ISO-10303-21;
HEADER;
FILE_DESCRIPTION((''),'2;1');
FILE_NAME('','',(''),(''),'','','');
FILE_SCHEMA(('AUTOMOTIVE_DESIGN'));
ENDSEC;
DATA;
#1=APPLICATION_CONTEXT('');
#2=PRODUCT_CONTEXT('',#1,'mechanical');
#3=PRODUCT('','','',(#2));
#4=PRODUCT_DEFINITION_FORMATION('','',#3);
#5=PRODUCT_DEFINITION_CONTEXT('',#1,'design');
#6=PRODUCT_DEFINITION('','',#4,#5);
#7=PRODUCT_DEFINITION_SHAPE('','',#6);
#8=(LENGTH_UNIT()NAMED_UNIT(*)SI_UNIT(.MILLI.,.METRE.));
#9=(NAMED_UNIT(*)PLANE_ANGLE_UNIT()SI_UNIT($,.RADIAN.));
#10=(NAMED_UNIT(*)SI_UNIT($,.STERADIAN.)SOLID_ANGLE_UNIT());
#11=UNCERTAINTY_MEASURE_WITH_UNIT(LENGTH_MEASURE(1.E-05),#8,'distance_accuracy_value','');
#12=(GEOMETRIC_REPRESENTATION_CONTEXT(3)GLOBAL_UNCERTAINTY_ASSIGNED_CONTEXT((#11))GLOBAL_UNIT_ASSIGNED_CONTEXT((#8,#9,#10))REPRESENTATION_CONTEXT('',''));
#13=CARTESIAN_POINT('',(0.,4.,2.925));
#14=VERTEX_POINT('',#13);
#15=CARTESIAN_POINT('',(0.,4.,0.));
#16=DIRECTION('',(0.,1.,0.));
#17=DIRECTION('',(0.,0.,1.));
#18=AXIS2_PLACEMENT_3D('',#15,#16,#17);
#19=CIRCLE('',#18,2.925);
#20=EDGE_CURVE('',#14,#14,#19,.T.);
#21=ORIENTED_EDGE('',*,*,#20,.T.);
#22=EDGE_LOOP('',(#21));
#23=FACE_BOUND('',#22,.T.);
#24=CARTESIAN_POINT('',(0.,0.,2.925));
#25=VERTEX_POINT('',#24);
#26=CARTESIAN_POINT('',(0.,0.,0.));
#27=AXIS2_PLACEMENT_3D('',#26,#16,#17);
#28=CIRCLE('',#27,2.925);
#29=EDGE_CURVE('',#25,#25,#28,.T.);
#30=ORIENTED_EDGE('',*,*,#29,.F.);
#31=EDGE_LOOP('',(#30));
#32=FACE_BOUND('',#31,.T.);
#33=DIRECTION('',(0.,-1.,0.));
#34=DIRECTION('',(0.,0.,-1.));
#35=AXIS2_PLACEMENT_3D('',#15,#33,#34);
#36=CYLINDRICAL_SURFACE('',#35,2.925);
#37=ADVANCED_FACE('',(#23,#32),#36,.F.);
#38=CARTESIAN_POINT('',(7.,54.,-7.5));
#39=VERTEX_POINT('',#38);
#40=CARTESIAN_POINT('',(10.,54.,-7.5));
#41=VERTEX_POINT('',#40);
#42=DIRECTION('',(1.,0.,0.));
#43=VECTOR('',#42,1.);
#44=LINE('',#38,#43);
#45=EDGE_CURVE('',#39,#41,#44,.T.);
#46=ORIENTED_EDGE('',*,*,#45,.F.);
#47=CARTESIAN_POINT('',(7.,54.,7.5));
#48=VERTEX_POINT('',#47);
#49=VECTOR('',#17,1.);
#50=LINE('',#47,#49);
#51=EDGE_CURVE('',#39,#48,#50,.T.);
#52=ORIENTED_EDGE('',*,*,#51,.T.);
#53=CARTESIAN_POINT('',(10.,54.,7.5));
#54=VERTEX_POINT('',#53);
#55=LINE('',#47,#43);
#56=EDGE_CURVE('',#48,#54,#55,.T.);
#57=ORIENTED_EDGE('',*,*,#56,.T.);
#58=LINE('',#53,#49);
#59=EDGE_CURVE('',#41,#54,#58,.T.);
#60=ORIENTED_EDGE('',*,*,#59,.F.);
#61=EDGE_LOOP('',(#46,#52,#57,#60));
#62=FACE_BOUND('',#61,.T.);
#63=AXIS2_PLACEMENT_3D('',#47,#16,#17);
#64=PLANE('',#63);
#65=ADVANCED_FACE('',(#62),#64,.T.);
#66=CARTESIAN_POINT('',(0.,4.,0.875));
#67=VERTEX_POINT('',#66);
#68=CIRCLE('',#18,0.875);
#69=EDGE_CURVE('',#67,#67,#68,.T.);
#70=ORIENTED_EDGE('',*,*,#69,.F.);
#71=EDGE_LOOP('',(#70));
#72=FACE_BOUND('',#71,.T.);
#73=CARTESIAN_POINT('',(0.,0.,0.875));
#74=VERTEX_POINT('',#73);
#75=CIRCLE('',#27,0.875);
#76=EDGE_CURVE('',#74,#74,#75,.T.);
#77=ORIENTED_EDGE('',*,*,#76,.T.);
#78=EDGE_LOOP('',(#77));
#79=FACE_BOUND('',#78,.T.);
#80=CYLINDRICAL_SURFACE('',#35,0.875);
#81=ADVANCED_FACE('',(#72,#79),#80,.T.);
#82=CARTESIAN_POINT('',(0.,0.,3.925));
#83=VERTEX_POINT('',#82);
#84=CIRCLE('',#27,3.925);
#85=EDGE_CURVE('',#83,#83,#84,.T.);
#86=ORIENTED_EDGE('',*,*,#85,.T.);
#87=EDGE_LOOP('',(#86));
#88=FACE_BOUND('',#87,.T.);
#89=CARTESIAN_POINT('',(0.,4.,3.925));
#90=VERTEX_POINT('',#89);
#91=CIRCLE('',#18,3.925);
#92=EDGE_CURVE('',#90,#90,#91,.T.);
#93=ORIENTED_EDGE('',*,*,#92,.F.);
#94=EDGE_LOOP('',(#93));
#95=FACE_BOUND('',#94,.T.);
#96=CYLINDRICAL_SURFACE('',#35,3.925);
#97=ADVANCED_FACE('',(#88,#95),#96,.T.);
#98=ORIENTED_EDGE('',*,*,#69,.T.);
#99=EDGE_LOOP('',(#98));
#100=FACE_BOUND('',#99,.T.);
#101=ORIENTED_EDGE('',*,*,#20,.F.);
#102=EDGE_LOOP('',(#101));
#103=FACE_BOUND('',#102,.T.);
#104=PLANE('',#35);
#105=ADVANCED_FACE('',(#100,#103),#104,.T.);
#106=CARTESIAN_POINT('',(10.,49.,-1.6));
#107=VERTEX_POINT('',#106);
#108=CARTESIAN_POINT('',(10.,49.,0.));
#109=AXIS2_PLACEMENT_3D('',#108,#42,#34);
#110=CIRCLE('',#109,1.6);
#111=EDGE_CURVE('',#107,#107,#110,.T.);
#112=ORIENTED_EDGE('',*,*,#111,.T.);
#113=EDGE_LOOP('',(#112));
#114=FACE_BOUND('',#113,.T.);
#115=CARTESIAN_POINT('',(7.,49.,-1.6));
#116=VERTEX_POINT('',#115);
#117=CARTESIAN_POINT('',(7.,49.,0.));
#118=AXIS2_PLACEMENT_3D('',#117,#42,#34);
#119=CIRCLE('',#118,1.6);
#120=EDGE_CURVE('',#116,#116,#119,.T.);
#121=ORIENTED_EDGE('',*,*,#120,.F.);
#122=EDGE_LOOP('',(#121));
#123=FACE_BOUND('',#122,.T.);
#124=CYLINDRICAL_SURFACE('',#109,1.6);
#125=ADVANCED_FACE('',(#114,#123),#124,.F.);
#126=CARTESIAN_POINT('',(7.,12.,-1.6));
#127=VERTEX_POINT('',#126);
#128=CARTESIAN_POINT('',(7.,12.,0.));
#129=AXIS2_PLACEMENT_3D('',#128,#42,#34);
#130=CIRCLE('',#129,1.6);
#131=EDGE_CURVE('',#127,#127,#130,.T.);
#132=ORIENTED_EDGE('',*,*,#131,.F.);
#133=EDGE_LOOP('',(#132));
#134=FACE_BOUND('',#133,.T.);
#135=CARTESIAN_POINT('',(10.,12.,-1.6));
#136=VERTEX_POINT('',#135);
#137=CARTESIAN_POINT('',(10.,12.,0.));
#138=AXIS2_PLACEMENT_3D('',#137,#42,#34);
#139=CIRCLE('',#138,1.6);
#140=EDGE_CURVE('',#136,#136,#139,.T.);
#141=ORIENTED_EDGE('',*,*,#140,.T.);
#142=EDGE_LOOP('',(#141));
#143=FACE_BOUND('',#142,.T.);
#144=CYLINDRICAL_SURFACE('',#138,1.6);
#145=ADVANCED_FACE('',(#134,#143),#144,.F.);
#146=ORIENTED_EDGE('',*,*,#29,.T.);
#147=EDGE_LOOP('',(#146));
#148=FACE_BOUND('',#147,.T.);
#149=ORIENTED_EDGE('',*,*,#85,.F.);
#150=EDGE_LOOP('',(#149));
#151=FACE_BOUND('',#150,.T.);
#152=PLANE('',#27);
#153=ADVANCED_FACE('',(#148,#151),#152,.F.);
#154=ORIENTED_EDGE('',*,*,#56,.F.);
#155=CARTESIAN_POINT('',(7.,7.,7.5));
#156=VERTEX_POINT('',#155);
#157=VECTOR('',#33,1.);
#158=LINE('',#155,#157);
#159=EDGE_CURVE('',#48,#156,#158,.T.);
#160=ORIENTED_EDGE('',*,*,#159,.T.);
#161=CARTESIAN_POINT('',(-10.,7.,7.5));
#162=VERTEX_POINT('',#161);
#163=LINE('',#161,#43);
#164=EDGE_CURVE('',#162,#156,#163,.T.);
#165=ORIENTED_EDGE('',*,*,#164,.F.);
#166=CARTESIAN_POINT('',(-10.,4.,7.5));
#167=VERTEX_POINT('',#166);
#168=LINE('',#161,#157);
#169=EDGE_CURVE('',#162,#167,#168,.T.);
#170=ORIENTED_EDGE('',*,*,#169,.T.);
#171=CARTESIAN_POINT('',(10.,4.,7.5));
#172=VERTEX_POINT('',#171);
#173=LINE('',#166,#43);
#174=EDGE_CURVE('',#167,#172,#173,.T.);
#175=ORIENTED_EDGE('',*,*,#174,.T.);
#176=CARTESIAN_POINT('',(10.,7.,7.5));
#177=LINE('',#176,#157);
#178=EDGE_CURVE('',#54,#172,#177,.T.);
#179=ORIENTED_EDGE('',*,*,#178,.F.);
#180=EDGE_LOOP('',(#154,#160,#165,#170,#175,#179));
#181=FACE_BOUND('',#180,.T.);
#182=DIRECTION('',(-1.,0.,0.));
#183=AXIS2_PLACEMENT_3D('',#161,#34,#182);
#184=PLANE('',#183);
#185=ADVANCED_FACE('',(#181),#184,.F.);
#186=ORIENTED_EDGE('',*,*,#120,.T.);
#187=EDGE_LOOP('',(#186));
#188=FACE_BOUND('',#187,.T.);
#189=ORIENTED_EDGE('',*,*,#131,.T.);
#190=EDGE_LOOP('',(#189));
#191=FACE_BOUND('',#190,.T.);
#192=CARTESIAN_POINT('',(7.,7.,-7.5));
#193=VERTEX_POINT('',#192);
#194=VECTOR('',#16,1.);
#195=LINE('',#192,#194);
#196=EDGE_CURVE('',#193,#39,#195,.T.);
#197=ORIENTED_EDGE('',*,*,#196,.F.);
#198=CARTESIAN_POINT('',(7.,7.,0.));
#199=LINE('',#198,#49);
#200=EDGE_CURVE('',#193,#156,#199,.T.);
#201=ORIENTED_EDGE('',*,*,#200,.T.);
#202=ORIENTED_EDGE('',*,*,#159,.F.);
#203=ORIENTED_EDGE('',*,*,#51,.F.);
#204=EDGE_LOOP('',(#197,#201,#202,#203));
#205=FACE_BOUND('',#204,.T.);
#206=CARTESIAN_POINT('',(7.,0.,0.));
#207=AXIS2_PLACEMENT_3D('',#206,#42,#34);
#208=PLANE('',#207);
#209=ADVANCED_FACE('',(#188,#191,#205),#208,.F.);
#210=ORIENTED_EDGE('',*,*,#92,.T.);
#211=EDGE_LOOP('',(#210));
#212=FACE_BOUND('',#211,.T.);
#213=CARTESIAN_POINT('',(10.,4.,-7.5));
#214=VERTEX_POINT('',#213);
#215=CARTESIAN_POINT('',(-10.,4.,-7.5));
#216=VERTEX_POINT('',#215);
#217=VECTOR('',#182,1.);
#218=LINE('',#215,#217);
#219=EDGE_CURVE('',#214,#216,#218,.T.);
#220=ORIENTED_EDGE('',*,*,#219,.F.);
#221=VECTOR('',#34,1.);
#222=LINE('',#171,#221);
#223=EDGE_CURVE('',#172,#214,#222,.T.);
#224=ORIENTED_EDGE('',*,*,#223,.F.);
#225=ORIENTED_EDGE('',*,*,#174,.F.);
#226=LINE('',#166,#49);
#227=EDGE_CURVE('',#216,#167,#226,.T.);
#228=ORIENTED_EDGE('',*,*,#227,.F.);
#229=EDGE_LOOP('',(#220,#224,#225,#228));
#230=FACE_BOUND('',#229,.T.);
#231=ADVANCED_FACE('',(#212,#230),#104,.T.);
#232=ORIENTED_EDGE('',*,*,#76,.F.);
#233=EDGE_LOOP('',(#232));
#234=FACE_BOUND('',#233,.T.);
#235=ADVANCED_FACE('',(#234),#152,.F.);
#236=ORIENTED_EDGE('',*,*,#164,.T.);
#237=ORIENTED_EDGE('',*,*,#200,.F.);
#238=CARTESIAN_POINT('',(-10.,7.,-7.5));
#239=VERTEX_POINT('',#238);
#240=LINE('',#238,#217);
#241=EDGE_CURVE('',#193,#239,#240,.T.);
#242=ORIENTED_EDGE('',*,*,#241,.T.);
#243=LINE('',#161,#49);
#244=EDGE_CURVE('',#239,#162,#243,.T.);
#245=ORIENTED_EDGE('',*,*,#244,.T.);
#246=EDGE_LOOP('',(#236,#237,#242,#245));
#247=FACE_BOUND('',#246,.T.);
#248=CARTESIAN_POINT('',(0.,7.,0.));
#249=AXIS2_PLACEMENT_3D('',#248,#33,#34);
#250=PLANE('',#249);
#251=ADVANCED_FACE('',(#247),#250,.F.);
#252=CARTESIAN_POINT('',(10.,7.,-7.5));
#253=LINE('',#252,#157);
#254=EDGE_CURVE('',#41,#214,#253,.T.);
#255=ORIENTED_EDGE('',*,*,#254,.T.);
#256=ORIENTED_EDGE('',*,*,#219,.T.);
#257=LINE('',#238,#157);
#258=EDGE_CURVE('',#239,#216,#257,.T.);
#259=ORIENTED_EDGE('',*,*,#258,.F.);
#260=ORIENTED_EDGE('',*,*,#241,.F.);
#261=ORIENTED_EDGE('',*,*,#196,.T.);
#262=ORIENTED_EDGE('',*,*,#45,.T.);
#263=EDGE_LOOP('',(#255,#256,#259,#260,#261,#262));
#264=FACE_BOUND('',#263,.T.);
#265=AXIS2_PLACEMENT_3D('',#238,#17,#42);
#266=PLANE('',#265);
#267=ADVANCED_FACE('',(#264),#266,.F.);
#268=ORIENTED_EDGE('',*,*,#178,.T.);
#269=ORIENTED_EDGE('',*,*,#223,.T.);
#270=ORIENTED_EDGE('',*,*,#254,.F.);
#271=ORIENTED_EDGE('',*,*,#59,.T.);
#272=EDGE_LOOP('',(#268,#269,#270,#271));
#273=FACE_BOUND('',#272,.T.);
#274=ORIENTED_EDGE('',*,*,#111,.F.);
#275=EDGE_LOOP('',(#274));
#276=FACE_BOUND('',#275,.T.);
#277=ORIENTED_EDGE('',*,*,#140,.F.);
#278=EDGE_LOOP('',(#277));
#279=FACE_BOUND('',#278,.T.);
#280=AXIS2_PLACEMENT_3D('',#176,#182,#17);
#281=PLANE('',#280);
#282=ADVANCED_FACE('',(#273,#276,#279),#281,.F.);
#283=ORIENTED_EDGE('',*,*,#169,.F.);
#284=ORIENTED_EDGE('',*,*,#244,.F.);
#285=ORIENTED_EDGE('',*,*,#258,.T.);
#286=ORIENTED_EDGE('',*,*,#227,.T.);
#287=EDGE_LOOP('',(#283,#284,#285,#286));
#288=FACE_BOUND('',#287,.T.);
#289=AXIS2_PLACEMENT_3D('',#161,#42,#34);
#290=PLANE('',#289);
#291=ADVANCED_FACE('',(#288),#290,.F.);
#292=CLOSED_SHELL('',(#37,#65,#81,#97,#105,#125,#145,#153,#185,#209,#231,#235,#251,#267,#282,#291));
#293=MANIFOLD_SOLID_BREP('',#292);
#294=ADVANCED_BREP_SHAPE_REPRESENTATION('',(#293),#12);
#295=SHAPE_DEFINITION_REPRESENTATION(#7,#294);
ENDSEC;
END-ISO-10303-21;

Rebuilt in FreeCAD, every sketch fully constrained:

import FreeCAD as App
import Part
import Sketcher
Q = App.Units.Quantity

doc = App.newDocument("Part")
body = doc.addObject("PartDesign::Body", "Body")

sketch1 = body.newObject("Sketcher::SketchObject", "Sketch")
sketch1.AttachmentSupport = (doc.getObject("XZ_Plane"), [""])
sketch1.MapMode = "FlatFace"
sketch1.addGeometry(Part.Circle(App.Vector(0, 0, 0), App.Vector(0, 0, 1), 3.9), False)
sketch1.addGeometry(Part.Circle(App.Vector(0, 0, 0), App.Vector(0, 0, 1), 2.9), False)
sketch1.addConstraint(Sketcher.Constraint("Coincident", 0, 3, -1, 1))
sketch1.addConstraint(Sketcher.Constraint("Coincident", 1, 3, -1, 1))
sketch1.addConstraint(Sketcher.Constraint("Diameter", 0, Q("7.85 mm")))
sketch1.addConstraint(Sketcher.Constraint("Diameter", 1, Q("5.85 mm")))
pad1 = body.newObject("PartDesign::Pad", "Pad")
pad1.Profile = sketch1
pad1.Length = 4
pad1.Reversed = True
body2 = doc.addObject("PartDesign::Body", "Body001")

sketch2 = body2.newObject("Sketcher::SketchObject", "Sketch001")
sketch2.AttachmentSupport = (doc.getObject("XZ_Plane001"), [""])
sketch2.MapMode = "FlatFace"
sketch2.addGeometry(Part.Circle(App.Vector(0, 0, 0), App.Vector(0, 0, 1), 0.9), False)
sketch2.addConstraint(Sketcher.Constraint("Coincident", 0, 3, -1, 1))
sketch2.addConstraint(Sketcher.Constraint("Diameter", 0, Q("1.75 mm")))
pad2 = body2.newObject("PartDesign::Pad", "Pad001")
pad2.Profile = sketch2
pad2.Length = 4
pad2.Reversed = True
body.AllowCompound = True
doc.recompute()

boolean = body.newObject("PartDesign::Boolean", "Boolean")
boolean.Type = "Fuse"
boolean.addObjects([body2])

sketch3 = body.newObject("Sketcher::SketchObject", "Sketch002")
sketch3.AttachmentSupport = (doc.getObject("XZ_Plane"), [""])
sketch3.MapMode = "FlatFace"
sketch3.AttachmentOffset = App.Placement(App.Vector(0, 0, -4), App.Rotation())
sketch3.addGeometry(Part.LineSegment(App.Vector(-10, -8, 0), App.Vector(-10, 8, 0)), False)
sketch3.addGeometry(Part.LineSegment(App.Vector(-10, 8, 0), App.Vector(10, 8, 0)), False)
sketch3.addGeometry(Part.LineSegment(App.Vector(10, 8, 0), App.Vector(10, -8, 0)), False)
sketch3.addGeometry(Part.LineSegment(App.Vector(10, -8, 0), App.Vector(-10, -8, 0)), False)
sketch3.addConstraint(Sketcher.Constraint("Coincident", 0, 2, 1, 1))
sketch3.addConstraint(Sketcher.Constraint("Coincident", 1, 2, 2, 1))
sketch3.addConstraint(Sketcher.Constraint("Coincident", 2, 2, 3, 1))
sketch3.addConstraint(Sketcher.Constraint("Coincident", 3, 2, 0, 1))
sketch3.addConstraint(Sketcher.Constraint("Vertical", 0))
sketch3.addConstraint(Sketcher.Constraint("Horizontal", 1))
sketch3.addConstraint(Sketcher.Constraint("Vertical", 2))
sketch3.addConstraint(Sketcher.Constraint("Horizontal", 3))
sketch3.addConstraint(Sketcher.Constraint("Symmetric", 0, 2, 2, 2, -1, 1))
sketch3.addConstraint(Sketcher.Constraint("DistanceX", 1, 1, 1, 2, Q("20 mm")))
sketch3.addConstraint(Sketcher.Constraint("DistanceY", 0, 1, 0, 2, Q("15 mm")))
pad3 = body.newObject("PartDesign::Pad", "Pad002")
pad3.Profile = sketch3
pad3.Length = 3
pad3.Reversed = True

sketch4 = body.newObject("Sketcher::SketchObject", "Sketch003")
sketch4.AttachmentSupport = (doc.getObject("YZ_Plane"), [""])
sketch4.MapMode = "FlatFace"
sketch4.AttachmentOffset = App.Placement(App.Vector(0, 0, 10), App.Rotation())
sketch4.addGeometry(Part.LineSegment(App.Vector(54, 8, 0), App.Vector(4, 8, 0)), False)
sketch4.addGeometry(Part.LineSegment(App.Vector(4, 8, 0), App.Vector(4, -8, 0)), False)
sketch4.addGeometry(Part.LineSegment(App.Vector(4, -8, 0), App.Vector(54, -8, 0)), False)
sketch4.addGeometry(Part.LineSegment(App.Vector(54, -8, 0), App.Vector(54, 8, 0)), False)
sketch4.addConstraint(Sketcher.Constraint("Coincident", 0, 2, 1, 1))
sketch4.addConstraint(Sketcher.Constraint("Coincident", 1, 2, 2, 1))
sketch4.addConstraint(Sketcher.Constraint("Coincident", 2, 2, 3, 1))
sketch4.addConstraint(Sketcher.Constraint("Coincident", 3, 2, 0, 1))
sketch4.addConstraint(Sketcher.Constraint("Horizontal", 0))
sketch4.addConstraint(Sketcher.Constraint("Vertical", 1))
sketch4.addConstraint(Sketcher.Constraint("Horizontal", 2))
sketch4.addConstraint(Sketcher.Constraint("Vertical", 3))
sketch4.addConstraint(Sketcher.Constraint("DistanceX", 0, 2, 0, 1, Q("50 mm")))
sketch4.addConstraint(Sketcher.Constraint("DistanceY", 1, 2, 1, 1, Q("15 mm")))
sketch4.addConstraint(Sketcher.Constraint("DistanceX", -1, 1, 0, 2, Q("4 mm")))
sketch4.addConstraint(Sketcher.Constraint("DistanceY", -1, 1, 0, 2, Q("7.5 mm")))
pad4 = body.newObject("PartDesign::Pad", "Pad003")
pad4.Profile = sketch4
pad4.Length = 3
pad4.Reversed = True

sketch5 = body.newObject("Sketcher::SketchObject", "Sketch004")
sketch5.AttachmentSupport = (doc.getObject("YZ_Plane"), [""])
sketch5.MapMode = "FlatFace"
sketch5.AttachmentOffset = App.Placement(App.Vector(0, 0, 10), App.Rotation())
sketch5.addGeometry(Part.Circle(App.Vector(12, 0, 0), App.Vector(0, 0, 1), 1.6), False)
sketch5.addGeometry(Part.Circle(App.Vector(49, 0, 0), App.Vector(0, 0, 1), 1.6), False)
sketch5.addConstraint(Sketcher.Constraint("Equal", 0, 1))
sketch5.addConstraint(Sketcher.Constraint("PointOnObject", 0, 3, -1))
sketch5.addConstraint(Sketcher.Constraint("PointOnObject", 1, 3, -1))
sketch5.addConstraint(Sketcher.Constraint("Diameter", 0, Q("3.2 mm")))
sketch5.addConstraint(Sketcher.Constraint("DistanceX", -1, 1, 0, 3, Q("12 mm")))
sketch5.addConstraint(Sketcher.Constraint("DistanceX", -1, 1, 1, 3, Q("49 mm")))
doc.recompute()
hole = body.newObject("PartDesign::Hole", "Hole")
hole.Profile = sketch5
hole.ThreadType = "None"
hole.Diameter = 3.2
hole.DepthType = "Dimension"
hole.Depth = 4
hole.DrillPoint = "Angled"
hole.DrillPointAngle = 118

doc.recompute()
